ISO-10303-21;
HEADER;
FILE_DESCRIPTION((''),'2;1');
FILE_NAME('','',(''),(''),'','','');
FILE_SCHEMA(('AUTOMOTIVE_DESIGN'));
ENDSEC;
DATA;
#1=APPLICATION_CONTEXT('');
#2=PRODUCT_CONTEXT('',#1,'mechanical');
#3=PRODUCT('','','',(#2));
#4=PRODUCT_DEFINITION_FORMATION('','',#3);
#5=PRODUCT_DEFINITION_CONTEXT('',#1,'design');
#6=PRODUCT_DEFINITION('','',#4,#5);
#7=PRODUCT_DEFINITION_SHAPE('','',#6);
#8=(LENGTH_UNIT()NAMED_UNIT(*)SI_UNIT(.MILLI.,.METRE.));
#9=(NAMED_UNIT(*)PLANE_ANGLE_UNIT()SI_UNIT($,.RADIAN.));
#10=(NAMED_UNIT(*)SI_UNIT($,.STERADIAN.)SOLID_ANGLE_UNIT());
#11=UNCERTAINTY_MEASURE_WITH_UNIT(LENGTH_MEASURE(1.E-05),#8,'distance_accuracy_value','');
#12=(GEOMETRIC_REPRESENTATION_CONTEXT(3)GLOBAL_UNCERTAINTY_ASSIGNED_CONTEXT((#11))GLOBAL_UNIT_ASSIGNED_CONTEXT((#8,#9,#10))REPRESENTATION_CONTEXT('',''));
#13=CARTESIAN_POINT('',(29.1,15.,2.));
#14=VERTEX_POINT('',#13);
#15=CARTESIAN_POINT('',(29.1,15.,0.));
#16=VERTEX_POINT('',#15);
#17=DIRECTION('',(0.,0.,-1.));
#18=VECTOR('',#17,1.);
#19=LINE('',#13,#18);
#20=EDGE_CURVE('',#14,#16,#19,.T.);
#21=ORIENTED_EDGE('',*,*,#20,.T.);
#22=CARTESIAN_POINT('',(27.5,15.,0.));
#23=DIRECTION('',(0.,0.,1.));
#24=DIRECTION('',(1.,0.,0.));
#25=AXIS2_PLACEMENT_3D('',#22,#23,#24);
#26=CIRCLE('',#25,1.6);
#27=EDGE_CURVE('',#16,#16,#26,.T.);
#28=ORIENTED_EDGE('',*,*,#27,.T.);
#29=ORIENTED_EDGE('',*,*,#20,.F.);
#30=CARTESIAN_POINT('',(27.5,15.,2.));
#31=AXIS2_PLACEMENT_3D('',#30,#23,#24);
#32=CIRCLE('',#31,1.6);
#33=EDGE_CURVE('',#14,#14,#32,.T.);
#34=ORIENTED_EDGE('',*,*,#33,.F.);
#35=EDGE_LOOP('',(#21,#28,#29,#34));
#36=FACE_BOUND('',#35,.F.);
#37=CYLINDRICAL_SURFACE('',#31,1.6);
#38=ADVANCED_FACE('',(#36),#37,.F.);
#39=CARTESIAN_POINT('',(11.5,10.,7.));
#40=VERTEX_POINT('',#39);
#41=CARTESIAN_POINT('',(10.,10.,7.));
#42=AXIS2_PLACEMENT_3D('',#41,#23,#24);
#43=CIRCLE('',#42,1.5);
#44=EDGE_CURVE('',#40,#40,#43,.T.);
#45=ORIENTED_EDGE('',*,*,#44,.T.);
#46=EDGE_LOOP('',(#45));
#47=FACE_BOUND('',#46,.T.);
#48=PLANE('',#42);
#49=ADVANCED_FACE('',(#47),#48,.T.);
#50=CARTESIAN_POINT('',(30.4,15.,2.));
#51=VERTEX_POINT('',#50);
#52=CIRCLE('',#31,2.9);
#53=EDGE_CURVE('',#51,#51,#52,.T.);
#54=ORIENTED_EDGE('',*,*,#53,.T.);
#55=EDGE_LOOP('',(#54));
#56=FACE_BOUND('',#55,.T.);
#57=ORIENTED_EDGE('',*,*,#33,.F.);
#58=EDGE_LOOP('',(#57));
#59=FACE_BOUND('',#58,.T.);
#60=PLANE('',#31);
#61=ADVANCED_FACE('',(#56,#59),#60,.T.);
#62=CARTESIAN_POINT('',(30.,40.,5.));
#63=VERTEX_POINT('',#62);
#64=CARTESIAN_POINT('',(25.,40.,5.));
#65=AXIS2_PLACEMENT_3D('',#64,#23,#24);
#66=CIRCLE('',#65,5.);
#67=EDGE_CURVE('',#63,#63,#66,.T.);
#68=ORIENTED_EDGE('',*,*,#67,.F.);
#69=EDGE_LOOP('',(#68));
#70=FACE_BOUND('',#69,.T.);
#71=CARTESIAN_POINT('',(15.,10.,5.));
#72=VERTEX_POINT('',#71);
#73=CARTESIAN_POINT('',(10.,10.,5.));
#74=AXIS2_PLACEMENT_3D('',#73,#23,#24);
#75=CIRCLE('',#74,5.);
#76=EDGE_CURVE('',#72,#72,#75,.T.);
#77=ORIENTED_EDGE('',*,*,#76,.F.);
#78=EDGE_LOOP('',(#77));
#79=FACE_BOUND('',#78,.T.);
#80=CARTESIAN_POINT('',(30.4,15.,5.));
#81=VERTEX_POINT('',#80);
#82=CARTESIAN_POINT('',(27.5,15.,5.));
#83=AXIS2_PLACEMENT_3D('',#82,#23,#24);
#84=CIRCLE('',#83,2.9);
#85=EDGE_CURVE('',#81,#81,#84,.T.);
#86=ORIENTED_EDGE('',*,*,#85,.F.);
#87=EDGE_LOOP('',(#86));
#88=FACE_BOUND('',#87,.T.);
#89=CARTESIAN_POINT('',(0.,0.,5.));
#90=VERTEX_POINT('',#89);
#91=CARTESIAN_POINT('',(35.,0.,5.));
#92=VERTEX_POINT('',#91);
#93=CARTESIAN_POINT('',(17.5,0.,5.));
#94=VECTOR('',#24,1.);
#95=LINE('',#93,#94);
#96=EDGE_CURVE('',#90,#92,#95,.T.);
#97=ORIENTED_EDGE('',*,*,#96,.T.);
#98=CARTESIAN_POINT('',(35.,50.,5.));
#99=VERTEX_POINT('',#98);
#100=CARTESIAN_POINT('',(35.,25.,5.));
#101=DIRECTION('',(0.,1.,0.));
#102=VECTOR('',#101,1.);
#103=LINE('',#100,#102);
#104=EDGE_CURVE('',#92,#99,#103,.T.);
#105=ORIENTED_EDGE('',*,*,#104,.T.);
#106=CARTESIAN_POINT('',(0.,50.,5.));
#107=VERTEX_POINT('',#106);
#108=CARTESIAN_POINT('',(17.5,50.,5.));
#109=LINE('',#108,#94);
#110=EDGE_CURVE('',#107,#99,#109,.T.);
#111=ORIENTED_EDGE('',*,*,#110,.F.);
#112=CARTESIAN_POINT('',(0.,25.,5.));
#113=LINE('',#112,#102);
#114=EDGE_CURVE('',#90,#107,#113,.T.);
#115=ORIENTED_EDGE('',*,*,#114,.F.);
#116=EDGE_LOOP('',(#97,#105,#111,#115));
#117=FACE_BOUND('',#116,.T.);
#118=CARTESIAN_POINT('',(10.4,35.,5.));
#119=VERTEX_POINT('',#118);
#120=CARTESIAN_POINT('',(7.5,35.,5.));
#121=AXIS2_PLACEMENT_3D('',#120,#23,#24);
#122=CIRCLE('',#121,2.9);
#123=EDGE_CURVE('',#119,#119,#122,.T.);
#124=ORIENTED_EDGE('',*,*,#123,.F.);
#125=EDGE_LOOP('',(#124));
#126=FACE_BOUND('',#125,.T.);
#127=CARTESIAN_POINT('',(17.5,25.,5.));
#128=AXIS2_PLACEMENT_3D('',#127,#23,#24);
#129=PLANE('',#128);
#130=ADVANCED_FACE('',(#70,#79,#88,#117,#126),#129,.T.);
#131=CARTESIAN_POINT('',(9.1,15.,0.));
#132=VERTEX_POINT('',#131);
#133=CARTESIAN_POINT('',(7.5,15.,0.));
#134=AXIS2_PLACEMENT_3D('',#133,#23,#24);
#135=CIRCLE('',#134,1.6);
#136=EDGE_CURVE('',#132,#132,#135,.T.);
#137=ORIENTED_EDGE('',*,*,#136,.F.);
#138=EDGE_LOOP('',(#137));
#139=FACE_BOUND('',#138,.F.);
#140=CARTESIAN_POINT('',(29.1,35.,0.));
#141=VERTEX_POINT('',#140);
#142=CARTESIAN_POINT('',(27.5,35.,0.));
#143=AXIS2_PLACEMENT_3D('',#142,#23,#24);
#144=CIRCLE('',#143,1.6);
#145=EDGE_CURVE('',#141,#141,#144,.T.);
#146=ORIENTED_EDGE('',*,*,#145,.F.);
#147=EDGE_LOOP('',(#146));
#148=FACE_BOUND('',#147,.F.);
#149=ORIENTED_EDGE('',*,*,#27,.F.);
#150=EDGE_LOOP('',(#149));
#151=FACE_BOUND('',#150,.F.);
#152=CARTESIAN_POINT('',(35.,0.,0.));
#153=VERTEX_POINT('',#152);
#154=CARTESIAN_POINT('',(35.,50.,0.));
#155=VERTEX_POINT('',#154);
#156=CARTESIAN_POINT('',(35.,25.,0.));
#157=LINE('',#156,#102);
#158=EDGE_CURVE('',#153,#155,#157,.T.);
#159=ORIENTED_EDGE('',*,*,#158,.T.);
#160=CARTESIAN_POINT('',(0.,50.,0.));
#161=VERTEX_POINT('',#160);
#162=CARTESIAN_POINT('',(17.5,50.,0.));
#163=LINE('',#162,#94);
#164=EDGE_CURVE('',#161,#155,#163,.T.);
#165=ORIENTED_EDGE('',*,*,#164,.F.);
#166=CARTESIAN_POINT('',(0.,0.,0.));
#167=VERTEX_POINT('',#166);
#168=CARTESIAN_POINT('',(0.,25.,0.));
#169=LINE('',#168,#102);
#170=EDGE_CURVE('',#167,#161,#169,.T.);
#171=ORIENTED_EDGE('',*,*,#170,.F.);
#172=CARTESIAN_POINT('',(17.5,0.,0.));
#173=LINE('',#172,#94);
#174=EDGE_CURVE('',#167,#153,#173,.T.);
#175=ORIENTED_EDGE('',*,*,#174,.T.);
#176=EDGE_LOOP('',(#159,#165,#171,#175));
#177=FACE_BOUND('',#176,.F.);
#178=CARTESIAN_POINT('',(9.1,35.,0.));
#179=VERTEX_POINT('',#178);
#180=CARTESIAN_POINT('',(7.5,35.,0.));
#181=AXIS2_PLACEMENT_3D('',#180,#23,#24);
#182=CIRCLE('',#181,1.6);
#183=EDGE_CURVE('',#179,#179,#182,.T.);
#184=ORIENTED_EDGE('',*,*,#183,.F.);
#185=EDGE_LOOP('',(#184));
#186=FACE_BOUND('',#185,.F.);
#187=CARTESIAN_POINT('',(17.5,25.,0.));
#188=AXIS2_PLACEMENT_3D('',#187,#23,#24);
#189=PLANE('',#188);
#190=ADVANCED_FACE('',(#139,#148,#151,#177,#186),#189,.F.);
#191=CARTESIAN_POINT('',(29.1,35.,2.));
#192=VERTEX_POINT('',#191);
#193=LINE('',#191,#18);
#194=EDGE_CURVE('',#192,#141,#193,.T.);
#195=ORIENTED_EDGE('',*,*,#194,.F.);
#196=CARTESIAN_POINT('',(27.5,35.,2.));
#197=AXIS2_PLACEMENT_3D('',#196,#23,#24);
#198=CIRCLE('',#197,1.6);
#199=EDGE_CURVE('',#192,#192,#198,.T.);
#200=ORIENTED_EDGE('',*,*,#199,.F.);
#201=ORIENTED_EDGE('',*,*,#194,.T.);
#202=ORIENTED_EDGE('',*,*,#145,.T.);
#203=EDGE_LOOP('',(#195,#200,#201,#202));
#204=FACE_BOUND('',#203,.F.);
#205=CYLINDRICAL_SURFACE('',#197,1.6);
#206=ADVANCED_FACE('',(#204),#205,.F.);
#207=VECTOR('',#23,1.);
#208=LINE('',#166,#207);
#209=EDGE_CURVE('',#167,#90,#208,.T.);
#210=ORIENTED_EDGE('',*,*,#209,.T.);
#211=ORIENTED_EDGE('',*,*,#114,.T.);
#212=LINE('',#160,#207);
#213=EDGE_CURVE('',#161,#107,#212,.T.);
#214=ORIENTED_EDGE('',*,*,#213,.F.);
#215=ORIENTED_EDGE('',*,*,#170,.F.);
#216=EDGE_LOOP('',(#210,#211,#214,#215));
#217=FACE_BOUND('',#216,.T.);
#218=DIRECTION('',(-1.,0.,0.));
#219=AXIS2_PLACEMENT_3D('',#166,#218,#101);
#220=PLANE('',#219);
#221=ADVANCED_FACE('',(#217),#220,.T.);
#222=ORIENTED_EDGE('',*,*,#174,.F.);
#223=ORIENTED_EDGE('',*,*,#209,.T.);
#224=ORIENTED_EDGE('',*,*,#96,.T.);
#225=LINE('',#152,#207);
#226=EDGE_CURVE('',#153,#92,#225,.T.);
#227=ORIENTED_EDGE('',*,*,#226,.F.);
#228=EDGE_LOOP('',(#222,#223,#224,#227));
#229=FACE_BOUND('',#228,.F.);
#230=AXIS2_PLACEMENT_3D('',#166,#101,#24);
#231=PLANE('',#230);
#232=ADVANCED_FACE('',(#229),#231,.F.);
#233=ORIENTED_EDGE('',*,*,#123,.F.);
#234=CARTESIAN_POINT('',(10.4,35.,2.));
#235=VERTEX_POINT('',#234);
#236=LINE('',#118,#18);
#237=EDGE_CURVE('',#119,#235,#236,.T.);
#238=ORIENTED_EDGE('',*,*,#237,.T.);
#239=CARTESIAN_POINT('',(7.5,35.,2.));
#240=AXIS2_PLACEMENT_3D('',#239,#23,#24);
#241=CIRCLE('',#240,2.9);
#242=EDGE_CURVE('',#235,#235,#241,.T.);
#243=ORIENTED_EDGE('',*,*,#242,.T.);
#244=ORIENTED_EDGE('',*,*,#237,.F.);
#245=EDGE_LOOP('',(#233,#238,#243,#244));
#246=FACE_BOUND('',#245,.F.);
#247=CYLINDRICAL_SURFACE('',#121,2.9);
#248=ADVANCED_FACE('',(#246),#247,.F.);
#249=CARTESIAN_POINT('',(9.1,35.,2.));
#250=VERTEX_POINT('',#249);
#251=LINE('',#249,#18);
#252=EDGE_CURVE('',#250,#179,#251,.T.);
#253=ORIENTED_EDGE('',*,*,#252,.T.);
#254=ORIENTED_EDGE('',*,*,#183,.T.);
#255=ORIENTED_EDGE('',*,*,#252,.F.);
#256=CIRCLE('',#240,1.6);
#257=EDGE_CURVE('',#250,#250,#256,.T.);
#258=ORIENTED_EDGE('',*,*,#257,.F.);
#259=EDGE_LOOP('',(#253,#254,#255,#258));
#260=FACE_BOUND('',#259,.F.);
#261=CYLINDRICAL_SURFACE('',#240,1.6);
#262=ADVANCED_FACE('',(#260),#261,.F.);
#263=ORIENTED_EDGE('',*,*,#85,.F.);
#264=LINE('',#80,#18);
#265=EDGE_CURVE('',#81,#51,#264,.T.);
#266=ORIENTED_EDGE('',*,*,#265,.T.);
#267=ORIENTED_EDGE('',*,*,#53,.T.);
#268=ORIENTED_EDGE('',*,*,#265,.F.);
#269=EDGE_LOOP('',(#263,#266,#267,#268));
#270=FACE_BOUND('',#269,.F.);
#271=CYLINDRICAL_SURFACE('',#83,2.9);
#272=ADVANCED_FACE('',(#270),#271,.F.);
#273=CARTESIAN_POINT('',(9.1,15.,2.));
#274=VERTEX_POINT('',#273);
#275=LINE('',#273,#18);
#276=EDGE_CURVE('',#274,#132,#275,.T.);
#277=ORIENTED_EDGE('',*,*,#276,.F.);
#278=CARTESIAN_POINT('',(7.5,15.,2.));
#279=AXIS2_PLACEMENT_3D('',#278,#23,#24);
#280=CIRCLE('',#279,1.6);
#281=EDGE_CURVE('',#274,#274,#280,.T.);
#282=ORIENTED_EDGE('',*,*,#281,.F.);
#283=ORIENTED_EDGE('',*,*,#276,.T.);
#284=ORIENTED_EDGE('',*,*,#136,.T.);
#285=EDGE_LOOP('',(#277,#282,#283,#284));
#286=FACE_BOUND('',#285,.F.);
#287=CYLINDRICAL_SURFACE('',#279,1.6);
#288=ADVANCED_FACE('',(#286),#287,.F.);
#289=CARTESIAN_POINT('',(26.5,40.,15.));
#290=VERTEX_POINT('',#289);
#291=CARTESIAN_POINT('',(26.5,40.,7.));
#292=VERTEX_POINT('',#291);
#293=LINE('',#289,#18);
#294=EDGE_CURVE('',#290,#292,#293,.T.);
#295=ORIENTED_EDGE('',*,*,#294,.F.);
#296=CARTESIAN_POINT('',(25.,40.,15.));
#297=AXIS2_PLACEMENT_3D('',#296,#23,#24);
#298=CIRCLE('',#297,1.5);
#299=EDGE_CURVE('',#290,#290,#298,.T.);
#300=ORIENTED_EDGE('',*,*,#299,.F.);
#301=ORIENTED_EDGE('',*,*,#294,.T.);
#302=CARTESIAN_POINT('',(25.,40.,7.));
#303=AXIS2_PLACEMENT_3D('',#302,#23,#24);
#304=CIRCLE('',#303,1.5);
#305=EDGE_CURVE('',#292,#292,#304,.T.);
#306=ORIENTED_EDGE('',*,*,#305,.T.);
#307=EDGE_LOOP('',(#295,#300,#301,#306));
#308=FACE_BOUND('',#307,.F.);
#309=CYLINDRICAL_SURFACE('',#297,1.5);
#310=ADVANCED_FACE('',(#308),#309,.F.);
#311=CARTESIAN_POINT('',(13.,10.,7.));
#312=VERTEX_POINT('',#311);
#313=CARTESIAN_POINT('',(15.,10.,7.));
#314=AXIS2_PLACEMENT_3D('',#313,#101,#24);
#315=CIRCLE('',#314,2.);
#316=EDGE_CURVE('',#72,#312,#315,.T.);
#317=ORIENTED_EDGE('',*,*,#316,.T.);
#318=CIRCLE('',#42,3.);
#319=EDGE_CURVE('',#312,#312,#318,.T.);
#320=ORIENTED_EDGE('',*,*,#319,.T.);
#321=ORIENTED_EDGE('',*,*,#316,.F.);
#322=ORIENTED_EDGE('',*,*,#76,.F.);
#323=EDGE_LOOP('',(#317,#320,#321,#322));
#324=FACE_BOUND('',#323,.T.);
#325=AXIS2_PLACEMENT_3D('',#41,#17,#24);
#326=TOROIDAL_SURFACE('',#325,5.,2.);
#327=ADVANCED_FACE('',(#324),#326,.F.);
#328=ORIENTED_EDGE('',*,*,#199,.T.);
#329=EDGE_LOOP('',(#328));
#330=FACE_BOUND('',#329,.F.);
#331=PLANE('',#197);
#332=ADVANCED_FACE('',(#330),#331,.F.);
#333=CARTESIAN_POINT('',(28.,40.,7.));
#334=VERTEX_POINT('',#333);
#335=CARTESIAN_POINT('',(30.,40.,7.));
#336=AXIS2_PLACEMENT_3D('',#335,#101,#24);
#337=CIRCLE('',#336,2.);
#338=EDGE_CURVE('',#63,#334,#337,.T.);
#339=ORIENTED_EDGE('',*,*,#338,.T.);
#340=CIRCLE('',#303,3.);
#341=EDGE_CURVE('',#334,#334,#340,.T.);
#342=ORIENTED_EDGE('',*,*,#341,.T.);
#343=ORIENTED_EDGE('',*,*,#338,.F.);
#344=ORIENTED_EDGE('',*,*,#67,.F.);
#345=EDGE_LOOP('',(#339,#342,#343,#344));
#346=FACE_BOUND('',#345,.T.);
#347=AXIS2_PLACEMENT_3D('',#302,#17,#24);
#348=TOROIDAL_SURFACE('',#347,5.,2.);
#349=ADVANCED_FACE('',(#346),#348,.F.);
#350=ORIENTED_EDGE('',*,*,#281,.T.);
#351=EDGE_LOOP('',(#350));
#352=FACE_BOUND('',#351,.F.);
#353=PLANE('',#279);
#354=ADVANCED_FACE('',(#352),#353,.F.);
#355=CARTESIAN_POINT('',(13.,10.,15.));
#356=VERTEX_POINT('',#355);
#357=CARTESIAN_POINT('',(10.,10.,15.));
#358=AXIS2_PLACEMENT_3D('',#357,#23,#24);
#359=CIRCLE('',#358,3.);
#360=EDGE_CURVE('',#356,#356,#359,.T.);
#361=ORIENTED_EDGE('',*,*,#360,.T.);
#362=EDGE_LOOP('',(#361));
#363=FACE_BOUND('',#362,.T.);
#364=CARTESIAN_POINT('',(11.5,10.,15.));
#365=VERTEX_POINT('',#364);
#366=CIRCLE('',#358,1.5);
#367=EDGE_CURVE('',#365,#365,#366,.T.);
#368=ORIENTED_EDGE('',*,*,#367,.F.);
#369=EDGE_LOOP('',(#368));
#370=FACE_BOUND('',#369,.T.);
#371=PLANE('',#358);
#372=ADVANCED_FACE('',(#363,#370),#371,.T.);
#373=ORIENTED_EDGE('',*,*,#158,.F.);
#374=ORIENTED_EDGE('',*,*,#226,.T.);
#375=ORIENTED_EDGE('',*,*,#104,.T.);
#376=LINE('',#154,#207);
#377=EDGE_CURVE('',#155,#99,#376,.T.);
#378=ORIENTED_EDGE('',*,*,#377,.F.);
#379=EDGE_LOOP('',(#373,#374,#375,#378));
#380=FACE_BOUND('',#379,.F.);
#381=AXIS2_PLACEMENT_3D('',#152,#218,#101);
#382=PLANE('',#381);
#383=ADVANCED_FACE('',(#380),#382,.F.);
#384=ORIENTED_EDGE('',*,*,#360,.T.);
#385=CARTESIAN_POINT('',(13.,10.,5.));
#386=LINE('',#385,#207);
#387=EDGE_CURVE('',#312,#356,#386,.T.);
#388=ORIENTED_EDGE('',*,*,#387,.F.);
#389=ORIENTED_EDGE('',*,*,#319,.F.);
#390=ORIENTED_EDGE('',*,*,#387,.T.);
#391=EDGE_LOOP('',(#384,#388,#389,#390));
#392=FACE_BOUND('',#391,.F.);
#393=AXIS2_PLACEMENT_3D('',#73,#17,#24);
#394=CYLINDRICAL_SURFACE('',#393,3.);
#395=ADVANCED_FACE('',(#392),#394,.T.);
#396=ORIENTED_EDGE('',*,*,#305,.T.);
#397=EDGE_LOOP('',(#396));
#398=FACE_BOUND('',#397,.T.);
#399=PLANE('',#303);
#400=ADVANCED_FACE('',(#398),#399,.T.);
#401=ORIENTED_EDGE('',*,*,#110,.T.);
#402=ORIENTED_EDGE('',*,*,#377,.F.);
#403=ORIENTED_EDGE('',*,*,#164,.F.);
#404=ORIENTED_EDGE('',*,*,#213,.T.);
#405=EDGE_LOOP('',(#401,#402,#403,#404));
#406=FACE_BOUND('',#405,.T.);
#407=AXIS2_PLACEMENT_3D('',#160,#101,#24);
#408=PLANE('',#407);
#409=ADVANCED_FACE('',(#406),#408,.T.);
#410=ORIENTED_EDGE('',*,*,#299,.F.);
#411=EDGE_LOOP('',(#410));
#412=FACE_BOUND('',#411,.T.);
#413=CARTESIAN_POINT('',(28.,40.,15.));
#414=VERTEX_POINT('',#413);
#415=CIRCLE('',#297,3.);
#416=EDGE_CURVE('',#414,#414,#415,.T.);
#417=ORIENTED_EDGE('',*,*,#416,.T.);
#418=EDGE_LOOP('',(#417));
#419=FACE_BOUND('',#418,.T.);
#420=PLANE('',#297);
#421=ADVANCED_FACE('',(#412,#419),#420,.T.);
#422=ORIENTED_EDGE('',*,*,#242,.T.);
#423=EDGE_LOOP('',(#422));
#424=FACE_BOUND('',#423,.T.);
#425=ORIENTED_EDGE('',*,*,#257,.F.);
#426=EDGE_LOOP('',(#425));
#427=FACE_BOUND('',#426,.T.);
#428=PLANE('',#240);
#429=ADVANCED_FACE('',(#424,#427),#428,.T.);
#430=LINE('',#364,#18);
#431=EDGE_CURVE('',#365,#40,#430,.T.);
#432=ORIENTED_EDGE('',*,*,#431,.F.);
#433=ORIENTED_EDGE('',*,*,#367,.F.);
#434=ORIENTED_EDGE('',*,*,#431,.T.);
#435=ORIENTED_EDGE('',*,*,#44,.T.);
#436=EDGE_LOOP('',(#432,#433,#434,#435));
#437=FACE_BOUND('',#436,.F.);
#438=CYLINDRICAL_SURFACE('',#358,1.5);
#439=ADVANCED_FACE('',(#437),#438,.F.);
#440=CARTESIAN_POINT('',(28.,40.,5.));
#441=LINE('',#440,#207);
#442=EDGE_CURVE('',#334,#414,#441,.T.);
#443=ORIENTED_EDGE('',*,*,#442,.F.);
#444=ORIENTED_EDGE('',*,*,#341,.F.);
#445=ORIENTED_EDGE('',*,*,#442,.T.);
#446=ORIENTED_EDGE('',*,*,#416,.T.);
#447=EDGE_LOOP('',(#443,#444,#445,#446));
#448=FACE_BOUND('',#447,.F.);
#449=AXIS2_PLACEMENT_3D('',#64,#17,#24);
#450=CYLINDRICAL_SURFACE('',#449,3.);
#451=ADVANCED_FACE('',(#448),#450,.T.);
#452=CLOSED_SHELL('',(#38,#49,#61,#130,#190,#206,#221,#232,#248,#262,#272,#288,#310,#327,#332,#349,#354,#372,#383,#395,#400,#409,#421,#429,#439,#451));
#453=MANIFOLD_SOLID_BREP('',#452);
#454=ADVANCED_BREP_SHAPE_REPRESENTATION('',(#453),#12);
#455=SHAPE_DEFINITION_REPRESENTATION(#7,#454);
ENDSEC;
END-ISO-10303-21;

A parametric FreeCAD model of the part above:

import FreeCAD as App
import Part
import Sketcher


def edges_at(feature, points):
    """Names of the edges that pass closest to the given points."""
    edges = feature.Shape.Edges
    near = lambda p: min(range(len(edges)), key=lambda i: edges[i].distToShape(Part.Vertex(*p))[0])
    return sorted({f"Edge{near(p) + 1}" for p in points})


def add_polygon(sketch, points):
    """Adds a closed chain of lines whose ends are joined by coincident constraints."""
    first, n = sketch.GeometryCount, len(points)
    for a, b in zip(points, points[1:] + points[:1]):
        sketch.addGeometry(Part.LineSegment(App.Vector(*a, 0), App.Vector(*b, 0)), False)
    for i in range(n):
        sketch.addConstraint(Sketcher.Constraint("Coincident", first + i, 2, first + (i + 1) % n, 1))

doc = App.newDocument("Part")
body = doc.addObject("PartDesign::Body", "Body")

sketch1 = body.newObject("Sketcher::SketchObject", "Sketch")
sketch1.AttachmentSupport = (doc.getObject("XY_Plane"), [""])
sketch1.MapMode = "FlatFace"
add_polygon(sketch1, [(0, 50), (0, 0), (35, 0), (35, 50)])
sketch1.addConstraint(Sketcher.Constraint("Vertical", 0))
sketch1.addConstraint(Sketcher.Constraint("Horizontal", 1))
sketch1.addConstraint(Sketcher.Constraint("Vertical", 2))
sketch1.addConstraint(Sketcher.Constraint("Horizontal", 3))
sketch1.addConstraint(Sketcher.Constraint("Coincident", 0, 2, -1, 1))
sketch1.addConstraint(Sketcher.Constraint("DistanceX", 1, 1, 1, 2, 35.0))
sketch1.addConstraint(Sketcher.Constraint("DistanceY", 0, 2, 0, 1, 50.0))
pad1 = body.newObject("PartDesign::Pad", "Pad")
pad1.Profile = sketch1
pad1.Length = 5

sketch2 = body.newObject("Sketcher::SketchObject", "Sketch001")
sketch2.AttachmentSupport = (doc.getObject("XY_Plane"), [""])
sketch2.MapMode = "FlatFace"
sketch2.AttachmentOffset = App.Placement(App.Vector(0, 0, 5), App.Rotation())
sketch2.addGeometry(Part.Circle(App.Vector(7.5, 35, 0), App.Vector(0, 0, 1), 2.9), False)
sketch2.addGeometry(Part.Circle(App.Vector(27.5, 15, 0), App.Vector(0, 0, 1), 2.9), False)
sketch2.addConstraint(Sketcher.Constraint("Equal", 0, 1))
sketch2.addConstraint(Sketcher.Constraint("Diameter", 0, 5.8))
sketch2.addConstraint(Sketcher.Constraint("DistanceY", -1, 1, 0, 3, 35.0))
sketch2.addConstraint(Sketcher.Constraint("DistanceY", -1, 1, 1, 3, 15.0))
sketch2.addConstraint(Sketcher.Constraint("DistanceX", 0, 3, 1, 3, 20.0))
sketch2.addConstraint(Sketcher.Constraint("DistanceX", -1, 1, 0, 3, 7.5))
pocket1 = body.newObject("PartDesign::Pocket", "Pocket")
pocket1.Profile = sketch2
pocket1.Length = 3

sketch3 = body.newObject("Sketcher::SketchObject", "Sketch002")
sketch3.AttachmentSupport = (doc.getObject("XY_Plane"), [""])
sketch3.MapMode = "FlatFace"
sketch3.AttachmentOffset = App.Placement(App.Vector(0, 0, 2), App.Rotation())
sketch3.addGeometry(Part.Circle(App.Vector(7.5, 15, 0), App.Vector(0, 0, 1), 1.6), False)
sketch3.addGeometry(Part.Circle(App.Vector(7.5, 35, 0), App.Vector(0, 0, 1), 1.6), False)
sketch3.addGeometry(Part.Circle(App.Vector(27.5, 15, 0), App.Vector(0, 0, 1), 1.6), False)
sketch3.addGeometry(Part.Circle(App.Vector(27.5, 35, 0), App.Vector(0, 0, 1), 1.6), False)
sketch3.addConstraint(Sketcher.Constraint("Equal", 0, 1))
sketch3.addConstraint(Sketcher.Constraint("Equal", 1, 2))
sketch3.addConstraint(Sketcher.Constraint("Equal", 2, 3))
sketch3.addConstraint(Sketcher.Constraint("Horizontal", 0, 3, 2, 3))
sketch3.addConstraint(Sketcher.Constraint("Horizontal", 1, 3, 3, 3))
sketch3.addConstraint(Sketcher.Constraint("Vertical", 0, 3, 1, 3))
sketch3.addConstraint(Sketcher.Constraint("Vertical", 2, 3, 3, 3))
sketch3.addConstraint(Sketcher.Constraint("Diameter", 0, 3.2))
sketch3.addConstraint(Sketcher.Constraint("DistanceY", -1, 1, 0, 3, 15.0))
sketch3.addConstraint(Sketcher.Constraint("DistanceY", -1, 1, 1, 3, 35.0))
sketch3.addConstraint(Sketcher.Constraint("DistanceX", 0, 3, 2, 3, 20.0))
sketch3.addConstraint(Sketcher.Constraint("DistanceX", -1, 1, 0, 3, 7.5))
pocket2 = body.newObject("PartDesign::Pocket", "Pocket001")
pocket2.Profile = sketch3
pocket2.Length = 5

sketch4 = body.newObject("Sketcher::SketchObject", "Sketch003")
sketch4.AttachmentSupport = (doc.getObject("XY_Plane"), [""])
sketch4.MapMode = "FlatFace"
sketch4.AttachmentOffset = App.Placement(App.Vector(0, 0, 5), App.Rotation())
sketch4.addGeometry(Part.Circle(App.Vector(10, 10, 0), App.Vector(0, 0, 1), 3), False)
sketch4.addGeometry(Part.Circle(App.Vector(25, 40, 0), App.Vector(0, 0, 1), 3), False)
sketch4.addConstraint(Sketcher.Constraint("Equal", 0, 1))
sketch4.addConstraint(Sketcher.Constraint("Diameter", 0, 6.0))
sketch4.addConstraint(Sketcher.Constraint("DistanceX", -1, 1, 0, 3, 10.0))
sketch4.addConstraint(Sketcher.Constraint("DistanceY", -1, 1, 0, 3, 10.0))
sketch4.addConstraint(Sketcher.Constraint("DistanceX", -1, 1, 1, 3, 25.0))
sketch4.addConstraint(Sketcher.Constraint("DistanceY", -1, 1, 1, 3, 40.0))
pad2 = body.newObject("PartDesign::Pad", "Pad001")
pad2.Profile = sketch4
pad2.Length = 10

sketch5 = body.newObject("Sketcher::SketchObject", "Sketch004")
sketch5.AttachmentSupport = (doc.getObject("XY_Plane"), [""])
sketch5.MapMode = "FlatFace"
sketch5.AttachmentOffset = App.Placement(App.Vector(0, 0, 15), App.Rotation())
sketch5.addGeometry(Part.Circle(App.Vector(10, 10, 0), App.Vector(0, 0, 1), 1.5), False)
sketch5.addGeometry(Part.Circle(App.Vector(25, 40, 0), App.Vector(0, 0, 1), 1.5), False)
sketch5.addConstraint(Sketcher.Constraint("Equal", 0, 1))
sketch5.addConstraint(Sketcher.Constraint("Diameter", 0, 3.0))
sketch5.addConstraint(Sketcher.Constraint("DistanceX", -1, 1, 0, 3, 10.0))
sketch5.addConstraint(Sketcher.Constraint("DistanceY", -1, 1, 0, 3, 10.0))
sketch5.addConstraint(Sketcher.Constraint("DistanceX", -1, 1, 1, 3, 25.0))
sketch5.addConstraint(Sketcher.Constraint("DistanceY", -1, 1, 1, 3, 40.0))
pocket3 = body.newObject("PartDesign::Pocket", "Pocket002")
pocket3.Profile = sketch5
pocket3.Length = 8
doc.recompute()

fillet = body.newObject("PartDesign::Fillet", "Fillet")
fillet.Base = (pocket3, edges_at(pocket3, [(22, 40, 5), (7, 10, 5)]))
fillet.Radius = 2

doc.recompute()
